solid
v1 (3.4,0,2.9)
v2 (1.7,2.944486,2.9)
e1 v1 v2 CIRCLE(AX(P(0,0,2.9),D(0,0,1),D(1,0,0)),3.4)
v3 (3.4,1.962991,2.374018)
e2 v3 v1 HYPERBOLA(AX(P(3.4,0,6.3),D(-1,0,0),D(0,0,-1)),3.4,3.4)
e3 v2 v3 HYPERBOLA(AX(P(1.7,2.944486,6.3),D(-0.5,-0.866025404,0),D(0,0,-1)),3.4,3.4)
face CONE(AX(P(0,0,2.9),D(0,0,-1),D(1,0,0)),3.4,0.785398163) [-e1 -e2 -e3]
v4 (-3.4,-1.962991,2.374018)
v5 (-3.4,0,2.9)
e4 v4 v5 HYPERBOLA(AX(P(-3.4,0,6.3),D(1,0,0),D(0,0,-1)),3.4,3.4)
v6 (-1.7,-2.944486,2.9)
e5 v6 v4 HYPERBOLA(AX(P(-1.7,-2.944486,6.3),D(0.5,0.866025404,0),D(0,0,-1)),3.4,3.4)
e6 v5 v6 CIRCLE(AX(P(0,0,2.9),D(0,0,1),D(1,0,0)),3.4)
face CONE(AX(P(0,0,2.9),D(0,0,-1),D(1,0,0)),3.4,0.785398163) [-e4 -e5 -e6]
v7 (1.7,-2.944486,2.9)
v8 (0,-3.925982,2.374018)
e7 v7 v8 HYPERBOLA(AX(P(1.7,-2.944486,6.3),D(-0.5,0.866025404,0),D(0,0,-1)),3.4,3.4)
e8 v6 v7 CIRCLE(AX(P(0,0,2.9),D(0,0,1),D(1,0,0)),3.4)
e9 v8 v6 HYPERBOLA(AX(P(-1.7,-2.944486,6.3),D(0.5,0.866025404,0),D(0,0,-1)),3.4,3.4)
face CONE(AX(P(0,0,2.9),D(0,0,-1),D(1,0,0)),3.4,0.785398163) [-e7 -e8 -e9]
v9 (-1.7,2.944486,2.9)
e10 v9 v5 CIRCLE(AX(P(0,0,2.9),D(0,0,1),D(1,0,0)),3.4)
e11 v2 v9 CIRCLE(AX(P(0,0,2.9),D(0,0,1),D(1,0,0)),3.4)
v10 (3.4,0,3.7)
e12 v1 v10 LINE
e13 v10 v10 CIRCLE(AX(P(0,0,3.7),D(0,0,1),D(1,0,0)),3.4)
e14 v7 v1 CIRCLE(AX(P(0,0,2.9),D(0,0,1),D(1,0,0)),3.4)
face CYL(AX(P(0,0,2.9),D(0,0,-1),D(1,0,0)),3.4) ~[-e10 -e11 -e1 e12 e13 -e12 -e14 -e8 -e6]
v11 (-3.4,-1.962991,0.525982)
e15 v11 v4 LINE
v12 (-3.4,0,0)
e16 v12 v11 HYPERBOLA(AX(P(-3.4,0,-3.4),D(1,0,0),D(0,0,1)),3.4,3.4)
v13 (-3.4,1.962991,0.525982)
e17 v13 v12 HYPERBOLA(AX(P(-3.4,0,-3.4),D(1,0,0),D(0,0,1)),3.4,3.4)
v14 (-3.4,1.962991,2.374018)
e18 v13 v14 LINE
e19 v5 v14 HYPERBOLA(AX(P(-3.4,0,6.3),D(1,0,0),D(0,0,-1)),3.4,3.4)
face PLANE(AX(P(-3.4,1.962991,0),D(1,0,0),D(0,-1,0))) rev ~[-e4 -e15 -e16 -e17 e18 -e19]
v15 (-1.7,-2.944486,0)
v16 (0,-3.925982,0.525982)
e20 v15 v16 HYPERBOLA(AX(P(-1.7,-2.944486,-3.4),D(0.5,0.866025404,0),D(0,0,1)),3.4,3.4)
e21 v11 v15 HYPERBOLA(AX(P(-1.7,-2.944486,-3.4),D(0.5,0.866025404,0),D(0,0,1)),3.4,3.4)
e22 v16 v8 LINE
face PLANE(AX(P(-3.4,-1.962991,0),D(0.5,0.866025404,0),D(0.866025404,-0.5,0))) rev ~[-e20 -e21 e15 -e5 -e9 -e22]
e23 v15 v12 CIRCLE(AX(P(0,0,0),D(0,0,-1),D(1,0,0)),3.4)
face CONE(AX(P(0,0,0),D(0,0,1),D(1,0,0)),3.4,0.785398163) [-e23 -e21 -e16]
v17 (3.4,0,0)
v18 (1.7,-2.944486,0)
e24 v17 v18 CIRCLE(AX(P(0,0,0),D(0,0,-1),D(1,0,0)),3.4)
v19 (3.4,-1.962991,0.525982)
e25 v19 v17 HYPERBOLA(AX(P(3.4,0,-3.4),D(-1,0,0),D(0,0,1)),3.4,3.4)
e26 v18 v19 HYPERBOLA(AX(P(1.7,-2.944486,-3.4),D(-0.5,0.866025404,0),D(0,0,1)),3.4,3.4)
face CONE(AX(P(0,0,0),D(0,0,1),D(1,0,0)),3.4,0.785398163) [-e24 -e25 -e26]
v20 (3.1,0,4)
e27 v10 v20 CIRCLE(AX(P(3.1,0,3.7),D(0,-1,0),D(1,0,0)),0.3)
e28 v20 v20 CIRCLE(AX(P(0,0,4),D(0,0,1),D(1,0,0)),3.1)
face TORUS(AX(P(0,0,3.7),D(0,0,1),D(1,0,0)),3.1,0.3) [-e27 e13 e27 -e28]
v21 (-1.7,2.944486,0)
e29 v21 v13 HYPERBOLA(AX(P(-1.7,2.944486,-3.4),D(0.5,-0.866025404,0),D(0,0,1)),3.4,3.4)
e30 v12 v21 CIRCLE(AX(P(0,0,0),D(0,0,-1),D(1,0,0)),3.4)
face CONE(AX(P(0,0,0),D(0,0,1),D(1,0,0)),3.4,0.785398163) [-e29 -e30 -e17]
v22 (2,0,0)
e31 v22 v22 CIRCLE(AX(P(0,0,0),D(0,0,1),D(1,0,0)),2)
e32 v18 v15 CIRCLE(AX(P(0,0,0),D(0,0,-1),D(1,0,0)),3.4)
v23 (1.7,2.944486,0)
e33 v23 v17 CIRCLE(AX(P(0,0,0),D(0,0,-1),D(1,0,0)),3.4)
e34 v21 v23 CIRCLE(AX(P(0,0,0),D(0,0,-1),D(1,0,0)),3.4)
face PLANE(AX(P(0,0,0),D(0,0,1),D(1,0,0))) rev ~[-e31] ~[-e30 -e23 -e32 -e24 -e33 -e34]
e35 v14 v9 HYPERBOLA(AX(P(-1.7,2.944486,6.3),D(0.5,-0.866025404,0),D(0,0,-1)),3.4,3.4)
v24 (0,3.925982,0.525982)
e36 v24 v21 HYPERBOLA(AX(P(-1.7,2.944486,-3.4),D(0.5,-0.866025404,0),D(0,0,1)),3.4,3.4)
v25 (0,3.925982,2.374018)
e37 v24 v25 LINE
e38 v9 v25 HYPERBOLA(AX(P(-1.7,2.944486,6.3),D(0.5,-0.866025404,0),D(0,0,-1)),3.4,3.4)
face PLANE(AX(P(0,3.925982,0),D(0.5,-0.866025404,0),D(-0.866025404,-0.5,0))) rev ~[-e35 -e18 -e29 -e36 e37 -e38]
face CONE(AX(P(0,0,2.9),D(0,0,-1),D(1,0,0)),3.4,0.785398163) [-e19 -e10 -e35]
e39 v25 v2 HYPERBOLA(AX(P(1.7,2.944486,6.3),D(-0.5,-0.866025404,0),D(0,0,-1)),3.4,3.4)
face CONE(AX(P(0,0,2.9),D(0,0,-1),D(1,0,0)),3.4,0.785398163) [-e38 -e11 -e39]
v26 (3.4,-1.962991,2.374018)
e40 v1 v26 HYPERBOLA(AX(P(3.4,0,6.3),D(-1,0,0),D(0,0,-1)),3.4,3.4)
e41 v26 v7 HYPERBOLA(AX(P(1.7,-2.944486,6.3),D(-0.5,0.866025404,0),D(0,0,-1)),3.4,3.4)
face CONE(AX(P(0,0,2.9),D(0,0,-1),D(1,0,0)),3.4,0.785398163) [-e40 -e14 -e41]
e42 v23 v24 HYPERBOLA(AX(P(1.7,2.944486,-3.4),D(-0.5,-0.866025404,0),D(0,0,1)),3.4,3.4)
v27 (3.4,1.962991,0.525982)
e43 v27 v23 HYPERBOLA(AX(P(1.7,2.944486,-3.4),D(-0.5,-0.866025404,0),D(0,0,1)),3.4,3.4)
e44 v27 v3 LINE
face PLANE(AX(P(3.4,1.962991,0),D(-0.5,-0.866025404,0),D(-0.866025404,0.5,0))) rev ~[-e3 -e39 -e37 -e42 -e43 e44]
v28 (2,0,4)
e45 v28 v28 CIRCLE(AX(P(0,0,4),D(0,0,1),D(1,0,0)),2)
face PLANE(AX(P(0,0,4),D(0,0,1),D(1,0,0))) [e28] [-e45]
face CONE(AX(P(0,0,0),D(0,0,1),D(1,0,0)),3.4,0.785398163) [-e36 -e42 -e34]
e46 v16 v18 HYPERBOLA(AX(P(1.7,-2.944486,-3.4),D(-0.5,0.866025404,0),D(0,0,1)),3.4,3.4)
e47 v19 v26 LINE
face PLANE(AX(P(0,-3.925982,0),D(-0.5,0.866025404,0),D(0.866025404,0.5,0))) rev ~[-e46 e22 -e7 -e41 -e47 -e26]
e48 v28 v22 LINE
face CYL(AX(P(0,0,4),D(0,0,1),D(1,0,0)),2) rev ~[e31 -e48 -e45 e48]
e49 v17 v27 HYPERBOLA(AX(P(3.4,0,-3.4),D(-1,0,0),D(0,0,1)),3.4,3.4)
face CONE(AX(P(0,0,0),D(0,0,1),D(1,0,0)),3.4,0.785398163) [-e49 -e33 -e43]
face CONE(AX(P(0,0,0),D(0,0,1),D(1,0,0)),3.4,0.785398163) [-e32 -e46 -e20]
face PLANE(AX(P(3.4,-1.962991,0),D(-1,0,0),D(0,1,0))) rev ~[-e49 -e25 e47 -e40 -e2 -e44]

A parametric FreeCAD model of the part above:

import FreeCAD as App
import Part
import Sketcher
from FreeCAD import Vector
Q = App.Units.Quantity


def edges_at(feature, points):
    """Names of the edges that pass closest to the given points."""
    edges = feature.Shape.Edges
    near = lambda p: min(range(len(edges)), key=lambda i: edges[i].distToShape(Part.Vertex(*p))[0])
    return sorted({f"Edge{near(p) + 1}" for p in points})


def faces_at(feature, points):
    """Names of the faces that lie closest to the given points."""
    faces = feature.Shape.Faces
    near = lambda p: min(range(len(faces)), key=lambda i: faces[i].distToShape(Part.Vertex(*p))[0])
    return sorted({f"Face{near(p) + 1}" for p in points})

doc = App.newDocument("Part")
params = doc.addObject("Spreadsheet::Sheet", "Params")
for row, (alias, value) in enumerate([
    ("pad1_length", "2.9 mm"),
    ("sketch2_diameter", "6.8 mm"),
    ("pad2_length", "1.1 mm"),
    ("sketch3_diameter", "4 mm"),
    ("sketch4_diameter", "6.8 mm"),
    ("pad3_length", "1.1 mm"),
    ("draft_angle", "45 deg"),
    ("sketch5_diameter", "6.8 mm"),
    ("pad4_length", "1.1 mm"),
    ("draft2_angle", "45 deg"),
    ("fillet_radius", "0.3 mm"),
], start=1):
    params.set(f"A{row}", alias)
    params.set(f"B{row}", "=" + value)
    params.setAlias(f"B{row}", alias)

body = doc.addObject("PartDesign::Body", "Body")

sketch1 = doc.addObject("Sketcher::SketchObject", "Sketch")
body.addObject(sketch1)
sketch1.AttachmentSupport = (doc.XY_Plane, [""])
sketch1.MapMode = "FlatFace"
sketch1.addGeometry([
    Part.LineSegment(Vector(0, 3.9, 0), Vector(-3.4, 2, 0)),
    Part.LineSegment(Vector(-3.4, 2, 0), Vector(-3.4, -2, 0)),
    Part.LineSegment(Vector(-3.4, -2, 0), Vector(0, -3.9, 0)),
    Part.LineSegment(Vector(0, -3.9, 0), Vector(3.4, -2, 0)),
    Part.LineSegment(Vector(3.4, -2, 0), Vector(3.4, 2, 0)),
    Part.LineSegment(Vector(3.4, 2, 0), Vector(0, 3.9, 0)),
], False)
sketch1.addConstraint([
    Sketcher.Constraint("Coincident", 0, 2, 1, 1),
    Sketcher.Constraint("Coincident", 1, 2, 2, 1),
    Sketcher.Constraint("Coincident", 2, 2, 3, 1),
    Sketcher.Constraint("Coincident", 3, 2, 4, 1),
    Sketcher.Constraint("Coincident", 4, 2, 5, 1),
    Sketcher.Constraint("Coincident", 5, 2, 0, 1),
    Sketcher.Constraint("Vertical", 1),
    Sketcher.Constraint("Vertical", 4),
    Sketcher.Constraint("Symmetric", 0, 2, 3, 2, -1, 1),
    Sketcher.Constraint("Symmetric", 2, 2, 5, 2, -1, 1),
    Sketcher.Constraint("PointOnObject", 2, 2, -2),
    Sketcher.Constraint("Parallel", 2, 5),
    Sketcher.Constraint("Horizontal", 1, 2, 3, 2),
    Sketcher.Constraint("Angle", 0, Q("-150 deg")),
    Sketcher.Constraint("DistanceX", 0, 2, -1, 1, Q("3.4 mm")),
    Sketcher.Constraint("DistanceY", 1, 2, 1, 1, Q("3.925982 mm")),
])
pad1 = doc.addObject("PartDesign::Pad", "Pad")
body.addObject(pad1)
pad1.Profile = sketch1
pad1.setExpression("Length", "Params.pad1_length")

sketch2 = doc.addObject("Sketcher::SketchObject", "Sketch001")
body.addObject(sketch2)
sketch2.AttachmentSupport = (doc.XY_Plane, [""])
sketch2.MapMode = "FlatFace"
sketch2.AttachmentOffset = App.Placement(Vector(0, 0, 2.9), App.Rotation())
sketch2.addGeometry(Part.Circle(Vector(0, 0, 0), Vector(0, 0, 1), 3.4), False)
sketch2.addConstraint([
    Sketcher.Constraint("Coincident", 0, 3, -1, 1),
    Sketcher.Constraint("Diameter", 0, Q("6.8 mm")),
])
sketch2.setExpression("Constraints[1]", "Params.sketch2_diameter")
pad2 = doc.addObject("PartDesign::Pad", "Pad001")
body.addObject(pad2)
pad2.Profile = sketch2
pad2.setExpression("Length", "Params.pad2_length")

sketch3 = doc.addObject("Sketcher::SketchObject", "Sketch002")
body.addObject(sketch3)
sketch3.AttachmentSupport = (doc.XY_Plane, [""])
sketch3.MapMode = "FlatFace"
sketch3.AttachmentOffset = App.Placement(Vector(0, 0, 4), App.Rotation())
sketch3.addGeometry(Part.Circle(Vector(0, 0, 0), Vector(0, 0, 1), 2), False)
sketch3.addConstraint([
    Sketcher.Constraint("Coincident", 0, 3, -1, 1),
    Sketcher.Constraint("Diameter", 0, Q("4 mm")),
])
sketch3.setExpression("Constraints[1]", "Params.sketch3_diameter")
pocket1 = doc.addObject("PartDesign::Pocket", "Pocket")
body.addObject(pocket1)
pocket1.Profile = sketch3
pocket1.Type = "ThroughAll"
body2 = doc.addObject("PartDesign::Body", "Body001")

sketch4 = doc.addObject("Sketcher::SketchObject", "Sketch003")
body2.addObject(sketch4)
sketch4.AttachmentSupport = (doc.getObject("XY_Plane001"), [""])
sketch4.MapMode = "FlatFace"
sketch4.AttachmentOffset = App.Placement(Vector(0, 0, 2.9), App.Rotation())
sketch4.addGeometry([
    Part.LineSegment(Vector(-6.6, 7.1, 0), Vector(-6.6, -7.1, 0)),
    Part.LineSegment(Vector(-6.6, -7.1, 0), Vector(6.6, -7.1, 0)),
    Part.LineSegment(Vector(6.6, -7.1, 0), Vector(6.6, 7.1, 0)),
    Part.LineSegment(Vector(6.6, 7.1, 0), Vector(-6.6, 7.1, 0)),
    Part.Circle(Vector(0, 0, 0), Vector(0, 0, 1), 3.4),
], False)
sketch4.addConstraint([
    Sketcher.Constraint("Coincident", 0, 2, 1, 1),
    Sketcher.Constraint("Coincident", 1, 2, 2, 1),
    Sketcher.Constraint("Coincident", 2, 2, 3, 1),
    Sketcher.Constraint("Coincident", 3, 2, 0, 1),
    Sketcher.Constraint("Vertical", 0),
    Sketcher.Constraint("Horizontal", 1),
    Sketcher.Constraint("Vertical", 2),
    Sketcher.Constraint("Horizontal", 3),
    Sketcher.Constraint("Coincident", 4, 3, -1, 1),
    Sketcher.Constraint("Symmetric", 0, 2, 2, 2, -1, 1),
    Sketcher.Constraint("Diameter", 4, Q("6.8 mm")),
    Sketcher.Constraint("DistanceX", 1, 1, 1, 2, Q("13.226 mm")),
    Sketcher.Constraint("DistanceY", 0, 2, 0, 1, Q("14.278 mm")),
])
sketch4.setExpression("Constraints[10]", "Params.sketch4_diameter")
pad3 = doc.addObject("PartDesign::Pad", "Pad002")
body2.addObject(pad3)
pad3.Profile = sketch4
pad3.setExpression("Length", "Params.pad3_length")
pad3.Reversed = True
doc.recompute()

datumplane = doc.addObject("PartDesign::Plane", "DatumPlane")
body2.addObject(datumplane)
datumplane.AttachmentSupport = (doc.getObject("XY_Plane001"), [""])
datumplane.MapMode = "FlatFace"
datumplane.AttachmentOffset = App.Placement(Vector(0, 0, 2.9), App.Rotation())
draft = doc.addObject("PartDesign::Draft", "Draft")
body2.addObject(draft)
draft.Base = (pad3, faces_at(pad3, [
    (0, -7.139, 2.35),
    (6.613, 0, 2.35),
    (0, 7.139, 2.35),
    (-6.613, 0, 2.35),
    (-3.4, 0, 2.35),
]))
draft.NeutralPlane = (datumplane, [""])
draft.setExpression("Angle", "Params.draft_angle")
draft.Reversed = True
doc.recompute()

boolean = doc.addObject("PartDesign::Boolean", "Boolean")
body.addObject(boolean)
boolean.Type = "Cut"
boolean.addObjects([body2])
body3 = doc.addObject("PartDesign::Body", "Body002")

sketch5 = doc.addObject("Sketcher::SketchObject", "Sketch004")
body3.addObject(sketch5)
sketch5.AttachmentSupport = (doc.getObject("XY_Plane002"), [""])
sketch5.MapMode = "FlatFace"
sketch5.addGeometry([
    Part.LineSegment(Vector(6.6, 7.1, 0), Vector(6.6, -7.1, 0)),
    Part.LineSegment(Vector(6.6, -7.1, 0), Vector(-6.6, -7.1, 0)),
    Part.LineSegment(Vector(-6.6, -7.1, 0), Vector(-6.6, 7.1, 0)),
    Part.LineSegment(Vector(-6.6, 7.1, 0), Vector(6.6, 7.1, 0)),
    Part.Circle(Vector(0, 0, 0), Vector(0, 0, 1), 3.4),
], False)
sketch5.addConstraint([
    Sketcher.Constraint("Coincident", 0, 2, 1, 1),
    Sketcher.Constraint("Coincident", 1, 2, 2, 1),
    Sketcher.Constraint("Coincident", 2, 2, 3, 1),
    Sketcher.Constraint("Coincident", 3, 2, 0, 1),
    Sketcher.Constraint("Vertical", 0),
    Sketcher.Constraint("Horizontal", 1),
    Sketcher.Constraint("Vertical", 2),
    Sketcher.Constraint("Horizontal", 3),
    Sketcher.Constraint("Coincident", 4, 3, -1, 1),
    Sketcher.Constraint("Symmetric", 0, 2, 2, 2, -1, 1),
    Sketcher.Constraint("Diameter", 4, Q("6.8 mm")),
    Sketcher.Constraint("DistanceX", 1, 2, 1, 1, Q("13.226 mm")),
    Sketcher.Constraint("DistanceY", 0, 2, 0, 1, Q("14.278 mm")),
])
sketch5.setExpression("Constraints[10]", "Params.sketch5_diameter")
pad4 = doc.addObject("PartDesign::Pad", "Pad003")
body3.addObject(pad4)
pad4.Profile = sketch5
pad4.setExpression("Length", "Params.pad4_length")
doc.recompute()

draft2 = doc.addObject("PartDesign::Draft", "Draft001")
body3.addObject(draft2)
draft2.Base = (pad4, faces_at(pad4, [
    (0, -7.139, 0.55),
    (-6.613, 0, 0.55),
    (0, 7.139, 0.55),
    (6.613, 0, 0.55),
    (-3.4, 0, 0.55),
]))
draft2.NeutralPlane = (doc.getObject("XY_Plane002"), [""])
draft2.setExpression("Angle", "Params.draft2_angle")
draft2.Reversed = False
doc.recompute()

boolean2 = doc.addObject("PartDesign::Boolean", "Boolean001")
body.addObject(boolean2)
boolean2.Type = "Cut"
boolean2.addObjects([body3])
doc.recompute()

fillet = doc.addObject("PartDesign::Fillet", "Fillet")
body.addObject(fillet)
fillet.Base = (boolean2, edges_at(boolean2, [(-3.4, 0, 4)]))
fillet.setExpression("Radius", "Params.fillet_radius")

doc.recompute()
